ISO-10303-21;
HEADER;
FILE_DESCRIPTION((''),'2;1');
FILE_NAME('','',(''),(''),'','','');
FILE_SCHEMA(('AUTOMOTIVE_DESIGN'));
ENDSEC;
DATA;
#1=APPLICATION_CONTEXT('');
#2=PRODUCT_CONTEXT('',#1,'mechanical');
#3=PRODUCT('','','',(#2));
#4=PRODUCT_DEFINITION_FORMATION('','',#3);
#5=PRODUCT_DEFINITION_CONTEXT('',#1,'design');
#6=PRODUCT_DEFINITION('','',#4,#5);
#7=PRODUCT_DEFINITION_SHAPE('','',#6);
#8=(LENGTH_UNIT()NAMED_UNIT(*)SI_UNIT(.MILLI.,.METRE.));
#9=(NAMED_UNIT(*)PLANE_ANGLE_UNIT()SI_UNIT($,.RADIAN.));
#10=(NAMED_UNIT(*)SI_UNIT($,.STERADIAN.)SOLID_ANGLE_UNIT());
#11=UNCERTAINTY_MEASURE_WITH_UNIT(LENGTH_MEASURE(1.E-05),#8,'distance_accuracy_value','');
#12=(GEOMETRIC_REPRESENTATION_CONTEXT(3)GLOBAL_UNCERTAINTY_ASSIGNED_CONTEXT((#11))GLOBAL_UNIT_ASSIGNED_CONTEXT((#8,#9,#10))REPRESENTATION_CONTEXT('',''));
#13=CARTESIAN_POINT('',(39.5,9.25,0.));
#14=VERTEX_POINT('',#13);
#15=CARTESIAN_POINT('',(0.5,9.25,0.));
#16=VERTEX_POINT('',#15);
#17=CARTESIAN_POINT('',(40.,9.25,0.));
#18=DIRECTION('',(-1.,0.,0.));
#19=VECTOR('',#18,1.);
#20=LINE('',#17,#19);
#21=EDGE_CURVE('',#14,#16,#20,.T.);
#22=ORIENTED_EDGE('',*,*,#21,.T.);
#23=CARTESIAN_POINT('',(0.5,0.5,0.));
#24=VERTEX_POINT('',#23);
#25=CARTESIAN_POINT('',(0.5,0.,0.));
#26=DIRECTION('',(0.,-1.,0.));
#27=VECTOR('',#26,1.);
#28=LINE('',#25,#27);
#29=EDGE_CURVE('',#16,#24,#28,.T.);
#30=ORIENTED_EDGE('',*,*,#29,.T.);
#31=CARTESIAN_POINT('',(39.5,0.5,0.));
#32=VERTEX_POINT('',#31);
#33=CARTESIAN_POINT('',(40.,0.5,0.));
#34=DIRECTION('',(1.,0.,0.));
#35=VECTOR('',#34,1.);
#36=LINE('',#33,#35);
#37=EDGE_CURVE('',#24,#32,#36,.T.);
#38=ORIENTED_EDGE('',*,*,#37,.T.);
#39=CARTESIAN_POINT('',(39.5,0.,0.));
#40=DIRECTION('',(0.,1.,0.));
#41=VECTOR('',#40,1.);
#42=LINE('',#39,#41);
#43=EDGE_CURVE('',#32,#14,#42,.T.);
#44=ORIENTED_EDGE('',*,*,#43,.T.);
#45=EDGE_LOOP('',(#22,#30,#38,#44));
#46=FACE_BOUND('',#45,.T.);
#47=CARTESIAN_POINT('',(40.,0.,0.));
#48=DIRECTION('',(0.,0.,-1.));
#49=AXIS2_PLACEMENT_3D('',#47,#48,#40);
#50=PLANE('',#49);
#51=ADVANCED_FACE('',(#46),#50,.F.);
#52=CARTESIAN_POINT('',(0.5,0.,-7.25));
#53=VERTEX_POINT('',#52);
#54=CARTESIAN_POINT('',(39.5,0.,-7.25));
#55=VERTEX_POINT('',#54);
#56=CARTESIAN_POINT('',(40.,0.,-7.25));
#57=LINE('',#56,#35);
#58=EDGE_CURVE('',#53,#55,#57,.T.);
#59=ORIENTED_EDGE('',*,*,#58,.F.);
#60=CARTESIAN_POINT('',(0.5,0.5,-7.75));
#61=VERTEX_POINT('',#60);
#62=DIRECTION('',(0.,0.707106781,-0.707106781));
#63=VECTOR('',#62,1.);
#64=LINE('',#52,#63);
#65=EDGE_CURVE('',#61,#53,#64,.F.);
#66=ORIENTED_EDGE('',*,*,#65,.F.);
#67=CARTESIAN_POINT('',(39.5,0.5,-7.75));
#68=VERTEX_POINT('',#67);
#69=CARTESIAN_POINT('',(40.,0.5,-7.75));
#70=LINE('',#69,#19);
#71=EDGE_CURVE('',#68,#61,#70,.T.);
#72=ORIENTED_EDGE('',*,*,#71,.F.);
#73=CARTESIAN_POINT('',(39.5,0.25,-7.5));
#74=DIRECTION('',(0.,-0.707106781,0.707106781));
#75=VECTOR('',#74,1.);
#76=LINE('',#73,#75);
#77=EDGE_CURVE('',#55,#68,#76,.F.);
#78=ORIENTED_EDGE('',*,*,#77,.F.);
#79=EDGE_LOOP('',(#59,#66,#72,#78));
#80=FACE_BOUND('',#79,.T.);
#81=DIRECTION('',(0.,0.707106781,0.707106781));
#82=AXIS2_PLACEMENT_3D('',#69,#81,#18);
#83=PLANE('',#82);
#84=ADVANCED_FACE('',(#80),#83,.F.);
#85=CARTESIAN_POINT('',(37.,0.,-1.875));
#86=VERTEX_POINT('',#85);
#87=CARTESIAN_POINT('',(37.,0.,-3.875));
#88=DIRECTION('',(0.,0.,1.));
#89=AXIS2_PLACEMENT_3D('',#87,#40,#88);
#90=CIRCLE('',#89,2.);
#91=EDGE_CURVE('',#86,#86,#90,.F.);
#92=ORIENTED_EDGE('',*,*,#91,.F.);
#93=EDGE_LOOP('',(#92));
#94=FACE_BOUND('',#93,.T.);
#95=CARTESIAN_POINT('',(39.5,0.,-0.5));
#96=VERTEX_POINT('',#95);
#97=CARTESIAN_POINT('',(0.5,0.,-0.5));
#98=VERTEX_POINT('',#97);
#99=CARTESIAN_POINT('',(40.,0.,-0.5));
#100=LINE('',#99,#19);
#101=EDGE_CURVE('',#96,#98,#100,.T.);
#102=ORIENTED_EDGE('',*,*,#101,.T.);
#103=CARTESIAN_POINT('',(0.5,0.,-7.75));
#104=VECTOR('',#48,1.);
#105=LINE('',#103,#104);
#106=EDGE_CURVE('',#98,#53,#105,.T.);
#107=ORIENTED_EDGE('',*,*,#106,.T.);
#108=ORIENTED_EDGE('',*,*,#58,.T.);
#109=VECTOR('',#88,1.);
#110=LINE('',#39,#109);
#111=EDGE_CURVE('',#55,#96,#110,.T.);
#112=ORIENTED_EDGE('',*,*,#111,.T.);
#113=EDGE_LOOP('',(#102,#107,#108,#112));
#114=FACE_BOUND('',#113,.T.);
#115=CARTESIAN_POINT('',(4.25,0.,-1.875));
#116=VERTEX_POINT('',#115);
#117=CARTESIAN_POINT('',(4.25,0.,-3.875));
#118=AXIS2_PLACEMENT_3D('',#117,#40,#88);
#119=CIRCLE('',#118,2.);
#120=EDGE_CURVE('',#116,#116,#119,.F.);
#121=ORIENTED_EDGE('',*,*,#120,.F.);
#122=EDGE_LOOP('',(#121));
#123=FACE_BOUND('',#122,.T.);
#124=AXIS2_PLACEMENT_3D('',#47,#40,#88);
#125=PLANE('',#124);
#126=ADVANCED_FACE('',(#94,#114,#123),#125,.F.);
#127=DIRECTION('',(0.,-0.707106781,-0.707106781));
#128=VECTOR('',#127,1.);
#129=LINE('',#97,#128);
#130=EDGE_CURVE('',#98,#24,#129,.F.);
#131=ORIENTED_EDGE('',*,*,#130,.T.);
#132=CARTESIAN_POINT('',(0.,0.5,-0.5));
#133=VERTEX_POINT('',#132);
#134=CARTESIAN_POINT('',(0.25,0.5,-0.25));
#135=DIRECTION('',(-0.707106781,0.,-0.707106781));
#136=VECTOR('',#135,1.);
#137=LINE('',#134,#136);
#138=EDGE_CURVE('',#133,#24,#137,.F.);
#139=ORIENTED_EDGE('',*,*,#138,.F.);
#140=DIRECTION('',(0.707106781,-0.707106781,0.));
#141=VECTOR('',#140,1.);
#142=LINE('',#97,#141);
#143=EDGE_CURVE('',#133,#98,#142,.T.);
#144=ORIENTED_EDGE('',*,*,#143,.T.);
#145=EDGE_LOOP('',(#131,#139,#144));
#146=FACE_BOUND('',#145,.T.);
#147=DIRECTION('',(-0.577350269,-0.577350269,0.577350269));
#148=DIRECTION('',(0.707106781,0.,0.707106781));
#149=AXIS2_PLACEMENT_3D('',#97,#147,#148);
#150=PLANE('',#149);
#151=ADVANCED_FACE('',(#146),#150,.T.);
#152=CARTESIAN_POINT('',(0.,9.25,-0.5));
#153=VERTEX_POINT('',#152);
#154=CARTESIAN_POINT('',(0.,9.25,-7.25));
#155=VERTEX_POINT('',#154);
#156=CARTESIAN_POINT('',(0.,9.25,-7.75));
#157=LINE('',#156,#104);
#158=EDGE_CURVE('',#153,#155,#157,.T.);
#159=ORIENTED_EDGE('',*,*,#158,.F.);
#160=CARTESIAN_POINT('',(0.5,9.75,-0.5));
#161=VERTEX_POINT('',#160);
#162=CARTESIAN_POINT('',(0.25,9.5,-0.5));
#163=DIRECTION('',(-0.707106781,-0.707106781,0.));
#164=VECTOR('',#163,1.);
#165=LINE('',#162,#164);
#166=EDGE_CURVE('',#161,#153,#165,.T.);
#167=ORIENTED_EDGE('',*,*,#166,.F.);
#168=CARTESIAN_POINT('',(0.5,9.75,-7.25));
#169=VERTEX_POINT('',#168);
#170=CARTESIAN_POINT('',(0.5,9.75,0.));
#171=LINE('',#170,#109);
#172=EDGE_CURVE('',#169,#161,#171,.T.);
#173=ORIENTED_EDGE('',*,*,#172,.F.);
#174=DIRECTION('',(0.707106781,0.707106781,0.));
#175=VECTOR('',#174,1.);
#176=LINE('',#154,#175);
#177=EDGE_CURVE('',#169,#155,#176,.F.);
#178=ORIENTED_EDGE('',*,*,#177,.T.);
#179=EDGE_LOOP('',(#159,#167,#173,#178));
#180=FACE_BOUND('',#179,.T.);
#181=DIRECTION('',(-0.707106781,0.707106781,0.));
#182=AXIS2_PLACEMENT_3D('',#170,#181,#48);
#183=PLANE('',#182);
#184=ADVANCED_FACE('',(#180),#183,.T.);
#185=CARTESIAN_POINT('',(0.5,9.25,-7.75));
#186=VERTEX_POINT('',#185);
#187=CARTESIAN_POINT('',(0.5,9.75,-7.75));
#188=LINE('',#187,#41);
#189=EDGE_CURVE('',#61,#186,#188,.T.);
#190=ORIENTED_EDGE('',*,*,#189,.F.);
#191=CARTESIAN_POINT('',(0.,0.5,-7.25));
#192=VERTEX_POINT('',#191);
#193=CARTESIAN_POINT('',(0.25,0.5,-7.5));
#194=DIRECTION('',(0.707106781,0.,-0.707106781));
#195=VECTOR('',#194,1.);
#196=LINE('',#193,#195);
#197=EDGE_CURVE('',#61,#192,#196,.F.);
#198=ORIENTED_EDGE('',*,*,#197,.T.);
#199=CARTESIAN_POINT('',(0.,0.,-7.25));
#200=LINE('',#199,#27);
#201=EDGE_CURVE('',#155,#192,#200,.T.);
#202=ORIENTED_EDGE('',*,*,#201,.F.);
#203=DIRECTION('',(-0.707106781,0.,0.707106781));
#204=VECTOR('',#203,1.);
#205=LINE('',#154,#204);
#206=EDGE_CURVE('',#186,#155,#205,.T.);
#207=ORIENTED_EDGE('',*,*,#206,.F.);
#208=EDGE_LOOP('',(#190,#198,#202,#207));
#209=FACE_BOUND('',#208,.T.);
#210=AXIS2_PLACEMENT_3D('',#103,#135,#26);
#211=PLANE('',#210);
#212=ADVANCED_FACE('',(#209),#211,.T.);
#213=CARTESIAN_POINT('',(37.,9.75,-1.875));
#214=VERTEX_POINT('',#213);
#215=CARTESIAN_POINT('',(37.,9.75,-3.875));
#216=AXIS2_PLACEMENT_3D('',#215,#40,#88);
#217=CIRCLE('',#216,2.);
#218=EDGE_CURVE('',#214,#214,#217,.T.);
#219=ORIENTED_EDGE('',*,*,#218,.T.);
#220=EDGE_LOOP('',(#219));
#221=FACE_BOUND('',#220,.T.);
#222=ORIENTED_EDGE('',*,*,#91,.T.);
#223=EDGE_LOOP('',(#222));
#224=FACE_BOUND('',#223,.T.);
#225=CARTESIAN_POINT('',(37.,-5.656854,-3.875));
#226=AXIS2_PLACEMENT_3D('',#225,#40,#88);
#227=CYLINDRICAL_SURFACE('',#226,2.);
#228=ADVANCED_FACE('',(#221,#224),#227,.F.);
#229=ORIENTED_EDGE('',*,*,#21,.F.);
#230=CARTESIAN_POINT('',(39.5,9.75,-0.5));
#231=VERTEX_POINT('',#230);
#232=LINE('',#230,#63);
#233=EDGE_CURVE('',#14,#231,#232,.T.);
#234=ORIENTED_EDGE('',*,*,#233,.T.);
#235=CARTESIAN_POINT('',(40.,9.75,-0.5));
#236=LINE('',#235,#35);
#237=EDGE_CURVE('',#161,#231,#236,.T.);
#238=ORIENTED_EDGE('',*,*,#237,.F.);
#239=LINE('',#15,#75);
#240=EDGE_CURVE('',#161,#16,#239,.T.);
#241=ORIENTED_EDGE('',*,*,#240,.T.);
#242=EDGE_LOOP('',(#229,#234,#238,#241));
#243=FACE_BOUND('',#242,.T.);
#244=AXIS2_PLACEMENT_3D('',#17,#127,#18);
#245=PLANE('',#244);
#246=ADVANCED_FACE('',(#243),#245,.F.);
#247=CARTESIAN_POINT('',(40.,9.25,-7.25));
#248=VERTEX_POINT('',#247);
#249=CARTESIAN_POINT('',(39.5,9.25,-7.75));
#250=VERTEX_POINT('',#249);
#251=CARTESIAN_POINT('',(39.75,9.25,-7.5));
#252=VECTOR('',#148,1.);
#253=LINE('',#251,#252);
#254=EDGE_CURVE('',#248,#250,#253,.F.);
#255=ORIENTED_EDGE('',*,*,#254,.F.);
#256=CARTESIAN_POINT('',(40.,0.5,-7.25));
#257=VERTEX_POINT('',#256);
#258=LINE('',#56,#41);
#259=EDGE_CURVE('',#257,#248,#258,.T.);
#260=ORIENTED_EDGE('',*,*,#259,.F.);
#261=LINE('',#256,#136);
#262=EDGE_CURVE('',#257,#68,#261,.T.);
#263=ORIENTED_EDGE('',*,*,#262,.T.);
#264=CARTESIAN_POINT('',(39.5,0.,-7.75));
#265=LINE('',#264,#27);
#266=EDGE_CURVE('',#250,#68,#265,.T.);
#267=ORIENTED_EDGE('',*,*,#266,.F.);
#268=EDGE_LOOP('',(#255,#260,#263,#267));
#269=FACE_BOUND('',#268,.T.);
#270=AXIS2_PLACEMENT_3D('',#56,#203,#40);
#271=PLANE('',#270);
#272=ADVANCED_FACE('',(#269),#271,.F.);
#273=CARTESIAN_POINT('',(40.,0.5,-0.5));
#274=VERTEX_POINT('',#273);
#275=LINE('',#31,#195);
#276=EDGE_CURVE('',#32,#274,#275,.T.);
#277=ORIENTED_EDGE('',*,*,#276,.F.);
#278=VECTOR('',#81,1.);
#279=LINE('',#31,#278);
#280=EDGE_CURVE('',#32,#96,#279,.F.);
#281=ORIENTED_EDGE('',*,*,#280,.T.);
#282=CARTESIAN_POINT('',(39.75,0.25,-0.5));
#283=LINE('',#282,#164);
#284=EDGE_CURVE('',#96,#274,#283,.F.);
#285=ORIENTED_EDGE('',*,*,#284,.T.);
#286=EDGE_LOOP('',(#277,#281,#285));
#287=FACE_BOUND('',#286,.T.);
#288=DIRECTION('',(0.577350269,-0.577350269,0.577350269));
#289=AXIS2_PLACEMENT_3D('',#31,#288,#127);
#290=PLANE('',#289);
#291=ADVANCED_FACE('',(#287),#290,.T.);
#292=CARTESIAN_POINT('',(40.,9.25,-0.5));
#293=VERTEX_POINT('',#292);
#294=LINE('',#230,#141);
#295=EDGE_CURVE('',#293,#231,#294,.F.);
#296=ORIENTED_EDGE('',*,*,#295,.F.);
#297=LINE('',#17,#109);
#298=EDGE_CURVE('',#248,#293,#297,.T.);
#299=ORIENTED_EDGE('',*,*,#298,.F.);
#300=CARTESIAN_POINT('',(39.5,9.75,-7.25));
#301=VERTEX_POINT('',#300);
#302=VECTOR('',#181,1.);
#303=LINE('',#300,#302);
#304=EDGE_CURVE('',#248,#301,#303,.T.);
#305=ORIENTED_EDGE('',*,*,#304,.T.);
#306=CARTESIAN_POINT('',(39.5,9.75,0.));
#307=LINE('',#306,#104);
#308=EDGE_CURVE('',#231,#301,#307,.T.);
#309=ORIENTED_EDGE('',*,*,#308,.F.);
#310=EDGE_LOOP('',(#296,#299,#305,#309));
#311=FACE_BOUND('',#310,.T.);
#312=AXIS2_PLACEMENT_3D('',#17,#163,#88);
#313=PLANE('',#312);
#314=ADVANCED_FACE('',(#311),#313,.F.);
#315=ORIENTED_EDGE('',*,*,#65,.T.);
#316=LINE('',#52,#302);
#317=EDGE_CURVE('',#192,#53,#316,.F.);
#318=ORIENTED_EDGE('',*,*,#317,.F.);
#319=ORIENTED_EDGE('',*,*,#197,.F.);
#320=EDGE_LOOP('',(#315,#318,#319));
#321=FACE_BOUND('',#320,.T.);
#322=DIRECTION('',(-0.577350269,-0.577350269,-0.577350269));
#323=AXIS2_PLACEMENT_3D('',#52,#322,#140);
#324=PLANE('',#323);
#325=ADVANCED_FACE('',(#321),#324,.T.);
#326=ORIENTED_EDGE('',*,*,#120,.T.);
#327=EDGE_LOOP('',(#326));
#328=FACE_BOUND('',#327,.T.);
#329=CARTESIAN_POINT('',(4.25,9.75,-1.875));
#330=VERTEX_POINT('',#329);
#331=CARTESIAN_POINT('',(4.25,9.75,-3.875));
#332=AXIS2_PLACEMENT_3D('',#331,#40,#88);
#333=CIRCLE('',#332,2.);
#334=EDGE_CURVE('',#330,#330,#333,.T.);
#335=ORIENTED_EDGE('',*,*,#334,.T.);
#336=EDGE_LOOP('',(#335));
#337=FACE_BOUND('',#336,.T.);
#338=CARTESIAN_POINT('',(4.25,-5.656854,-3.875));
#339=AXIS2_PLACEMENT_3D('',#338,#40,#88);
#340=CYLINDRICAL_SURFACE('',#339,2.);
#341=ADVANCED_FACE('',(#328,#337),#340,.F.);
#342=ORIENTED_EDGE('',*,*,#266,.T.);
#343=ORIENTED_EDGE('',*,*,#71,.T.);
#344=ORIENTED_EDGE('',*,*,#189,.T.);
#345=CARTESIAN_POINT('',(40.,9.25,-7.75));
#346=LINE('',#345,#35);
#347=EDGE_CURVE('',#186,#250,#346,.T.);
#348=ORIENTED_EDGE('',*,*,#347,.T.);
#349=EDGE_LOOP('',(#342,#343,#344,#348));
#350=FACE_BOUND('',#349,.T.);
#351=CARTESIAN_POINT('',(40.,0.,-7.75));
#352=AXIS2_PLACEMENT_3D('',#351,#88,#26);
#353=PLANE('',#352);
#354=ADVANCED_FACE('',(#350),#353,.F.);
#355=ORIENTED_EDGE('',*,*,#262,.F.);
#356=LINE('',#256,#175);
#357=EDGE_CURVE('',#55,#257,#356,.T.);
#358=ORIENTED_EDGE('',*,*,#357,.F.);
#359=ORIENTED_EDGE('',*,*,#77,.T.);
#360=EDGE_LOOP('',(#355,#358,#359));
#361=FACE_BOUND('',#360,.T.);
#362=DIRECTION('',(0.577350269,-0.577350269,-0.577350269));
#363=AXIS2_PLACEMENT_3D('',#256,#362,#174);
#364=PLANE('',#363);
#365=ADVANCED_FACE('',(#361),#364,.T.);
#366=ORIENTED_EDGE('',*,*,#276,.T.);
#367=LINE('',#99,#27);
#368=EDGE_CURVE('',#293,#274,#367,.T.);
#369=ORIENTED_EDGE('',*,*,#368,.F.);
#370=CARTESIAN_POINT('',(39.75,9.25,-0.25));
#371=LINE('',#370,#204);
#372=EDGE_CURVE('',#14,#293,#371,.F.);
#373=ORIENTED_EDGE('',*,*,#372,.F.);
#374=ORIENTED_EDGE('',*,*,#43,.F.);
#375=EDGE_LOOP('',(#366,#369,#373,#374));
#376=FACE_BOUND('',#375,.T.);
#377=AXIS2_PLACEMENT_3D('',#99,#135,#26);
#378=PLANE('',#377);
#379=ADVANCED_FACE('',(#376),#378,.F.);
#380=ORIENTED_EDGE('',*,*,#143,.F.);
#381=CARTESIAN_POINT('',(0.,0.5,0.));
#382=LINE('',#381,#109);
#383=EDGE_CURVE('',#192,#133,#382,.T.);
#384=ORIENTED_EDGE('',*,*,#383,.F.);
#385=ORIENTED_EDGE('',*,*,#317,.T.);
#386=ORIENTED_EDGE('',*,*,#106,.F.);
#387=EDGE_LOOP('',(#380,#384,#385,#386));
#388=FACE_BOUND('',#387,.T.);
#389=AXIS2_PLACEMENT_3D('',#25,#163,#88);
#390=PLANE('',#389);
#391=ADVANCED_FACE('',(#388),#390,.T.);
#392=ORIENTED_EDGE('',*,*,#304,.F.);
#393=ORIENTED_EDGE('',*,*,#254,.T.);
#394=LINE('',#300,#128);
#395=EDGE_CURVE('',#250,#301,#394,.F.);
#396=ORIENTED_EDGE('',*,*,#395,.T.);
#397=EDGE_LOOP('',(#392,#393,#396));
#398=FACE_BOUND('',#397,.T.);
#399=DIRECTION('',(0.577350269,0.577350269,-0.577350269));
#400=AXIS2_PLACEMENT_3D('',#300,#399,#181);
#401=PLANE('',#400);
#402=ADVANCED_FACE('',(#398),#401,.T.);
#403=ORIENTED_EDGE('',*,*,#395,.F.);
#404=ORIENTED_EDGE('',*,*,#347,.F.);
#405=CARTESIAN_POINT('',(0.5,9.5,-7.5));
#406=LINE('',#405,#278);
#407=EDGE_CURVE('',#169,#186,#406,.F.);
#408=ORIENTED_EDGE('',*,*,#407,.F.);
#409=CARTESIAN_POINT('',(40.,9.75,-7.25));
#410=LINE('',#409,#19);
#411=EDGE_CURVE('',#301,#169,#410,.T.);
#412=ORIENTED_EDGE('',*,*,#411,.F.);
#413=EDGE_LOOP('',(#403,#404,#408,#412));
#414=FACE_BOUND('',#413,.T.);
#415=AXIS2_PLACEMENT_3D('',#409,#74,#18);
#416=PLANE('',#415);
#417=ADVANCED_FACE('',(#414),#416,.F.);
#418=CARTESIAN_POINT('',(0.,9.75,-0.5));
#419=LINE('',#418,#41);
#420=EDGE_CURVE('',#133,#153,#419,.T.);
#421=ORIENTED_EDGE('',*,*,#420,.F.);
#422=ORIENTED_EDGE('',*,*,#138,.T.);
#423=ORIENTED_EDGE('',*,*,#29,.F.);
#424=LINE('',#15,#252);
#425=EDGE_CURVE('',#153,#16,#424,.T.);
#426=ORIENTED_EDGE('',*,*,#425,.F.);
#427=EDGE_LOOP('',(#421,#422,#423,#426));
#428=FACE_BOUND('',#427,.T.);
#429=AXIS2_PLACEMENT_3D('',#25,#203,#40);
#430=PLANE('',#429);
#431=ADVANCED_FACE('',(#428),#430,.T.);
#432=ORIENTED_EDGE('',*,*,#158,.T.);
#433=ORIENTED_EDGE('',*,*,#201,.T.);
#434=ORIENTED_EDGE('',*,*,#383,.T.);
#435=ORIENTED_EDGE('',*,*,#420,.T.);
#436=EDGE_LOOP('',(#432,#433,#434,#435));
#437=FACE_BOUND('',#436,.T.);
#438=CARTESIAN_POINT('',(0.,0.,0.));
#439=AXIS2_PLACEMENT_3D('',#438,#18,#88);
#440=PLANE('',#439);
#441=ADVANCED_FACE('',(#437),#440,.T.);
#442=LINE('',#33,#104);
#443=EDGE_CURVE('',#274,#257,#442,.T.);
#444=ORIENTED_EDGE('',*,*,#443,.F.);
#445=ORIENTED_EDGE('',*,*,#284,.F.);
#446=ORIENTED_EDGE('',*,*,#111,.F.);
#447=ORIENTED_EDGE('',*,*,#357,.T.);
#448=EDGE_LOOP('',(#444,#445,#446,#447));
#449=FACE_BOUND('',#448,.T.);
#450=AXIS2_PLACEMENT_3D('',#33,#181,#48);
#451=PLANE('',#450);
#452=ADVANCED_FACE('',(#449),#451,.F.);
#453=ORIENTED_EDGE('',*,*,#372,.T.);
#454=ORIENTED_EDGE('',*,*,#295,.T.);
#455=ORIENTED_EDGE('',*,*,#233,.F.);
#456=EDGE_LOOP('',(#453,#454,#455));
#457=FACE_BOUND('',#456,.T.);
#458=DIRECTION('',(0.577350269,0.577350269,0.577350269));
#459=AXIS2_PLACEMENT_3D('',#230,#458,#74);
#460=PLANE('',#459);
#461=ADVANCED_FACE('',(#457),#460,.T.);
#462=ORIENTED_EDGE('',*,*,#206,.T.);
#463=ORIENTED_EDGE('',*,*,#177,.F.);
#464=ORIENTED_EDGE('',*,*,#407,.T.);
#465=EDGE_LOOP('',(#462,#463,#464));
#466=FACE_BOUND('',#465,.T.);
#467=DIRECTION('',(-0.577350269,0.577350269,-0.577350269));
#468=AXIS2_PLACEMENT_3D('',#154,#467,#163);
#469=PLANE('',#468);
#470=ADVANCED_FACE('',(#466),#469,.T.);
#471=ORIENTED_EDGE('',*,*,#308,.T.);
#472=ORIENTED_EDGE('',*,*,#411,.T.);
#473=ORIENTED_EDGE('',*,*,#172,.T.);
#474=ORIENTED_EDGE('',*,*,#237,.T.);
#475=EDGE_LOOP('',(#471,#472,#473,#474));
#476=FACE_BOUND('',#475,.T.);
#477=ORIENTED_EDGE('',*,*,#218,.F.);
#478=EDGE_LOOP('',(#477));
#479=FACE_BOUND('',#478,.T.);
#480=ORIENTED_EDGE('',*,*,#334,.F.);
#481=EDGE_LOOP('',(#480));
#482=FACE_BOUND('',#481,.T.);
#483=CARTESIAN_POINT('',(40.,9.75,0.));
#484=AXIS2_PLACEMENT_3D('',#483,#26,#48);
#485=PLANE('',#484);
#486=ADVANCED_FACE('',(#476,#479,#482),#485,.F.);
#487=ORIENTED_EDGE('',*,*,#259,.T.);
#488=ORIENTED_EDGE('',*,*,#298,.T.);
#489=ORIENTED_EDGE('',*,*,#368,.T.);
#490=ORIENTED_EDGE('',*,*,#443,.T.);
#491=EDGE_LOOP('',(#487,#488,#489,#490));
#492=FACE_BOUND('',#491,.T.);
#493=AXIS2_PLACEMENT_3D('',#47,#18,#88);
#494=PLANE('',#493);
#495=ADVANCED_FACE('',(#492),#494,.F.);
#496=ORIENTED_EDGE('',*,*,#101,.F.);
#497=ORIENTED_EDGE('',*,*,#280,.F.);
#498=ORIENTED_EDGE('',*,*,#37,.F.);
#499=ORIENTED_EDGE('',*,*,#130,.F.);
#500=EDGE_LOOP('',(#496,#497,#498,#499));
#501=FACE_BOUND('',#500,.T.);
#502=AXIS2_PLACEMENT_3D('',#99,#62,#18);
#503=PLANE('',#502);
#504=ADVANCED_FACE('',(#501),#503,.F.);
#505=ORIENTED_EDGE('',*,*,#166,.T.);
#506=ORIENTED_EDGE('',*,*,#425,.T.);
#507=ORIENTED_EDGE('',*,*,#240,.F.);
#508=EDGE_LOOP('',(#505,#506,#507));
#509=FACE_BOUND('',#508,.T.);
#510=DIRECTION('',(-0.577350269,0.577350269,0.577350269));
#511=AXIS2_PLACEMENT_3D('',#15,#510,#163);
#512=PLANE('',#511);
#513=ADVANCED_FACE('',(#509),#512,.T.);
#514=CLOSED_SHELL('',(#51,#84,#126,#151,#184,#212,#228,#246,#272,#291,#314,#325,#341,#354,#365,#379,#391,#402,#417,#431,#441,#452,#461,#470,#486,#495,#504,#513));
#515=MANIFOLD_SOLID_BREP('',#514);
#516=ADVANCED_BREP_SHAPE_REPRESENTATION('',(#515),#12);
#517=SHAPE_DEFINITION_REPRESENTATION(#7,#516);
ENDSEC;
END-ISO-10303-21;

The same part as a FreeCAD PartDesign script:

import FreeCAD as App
import Part
import Sketcher

V = App.Vector


def edges_at(feature, points):
    """Names of the edges that pass closest to the given points."""
    edges = feature.Shape.Edges
    near = lambda p: min(range(len(edges)), key=lambda i: edges[i].distToShape(Part.Vertex(*p))[0])
    return sorted({f"Edge{near(p) + 1}" for p in points})

doc = App.newDocument("Part")
params = doc.addObject("Spreadsheet::Sheet", "Params")
for row, (alias, value) in enumerate([
    ("sketch1_width", "9.75 mm"),
    ("sketch1_height", "7.75 mm"),
    ("pad1_length", "40 mm"),
    ("sketch2_diameter", "4 mm"),
    ("pocket1_length", "9.75 mm"),
    ("chamfer_size", "0.5 mm"),
], start=1):
    params.set(f"A{row}", alias)
    params.set(f"B{row}", "=" + value)
    params.setAlias(f"B{row}", alias)

body = doc.addObject("PartDesign::Body", "Body")

sketch1 = body.newObject("Sketcher::SketchObject", "Sketch")
sketch1.AttachmentSupport = (doc.getObject("YZ_Plane"), [""])
sketch1.MapMode = "FlatFace"
sketch1.addGeometry([
    Part.LineSegment(V(9.75, 0, 0), V(0, 0, 0)),
    Part.LineSegment(V(0, 0, 0), V(0, -7.75, 0)),
    Part.LineSegment(V(0, -7.75, 0), V(9.75, -7.75, 0)),
    Part.LineSegment(V(9.75, -7.75, 0), V(9.75, 0, 0)),
], False)
sketch1.addConstraint([
    Sketcher.Constraint("Coincident", 0, 2, 1, 1),
    Sketcher.Constraint("Coincident", 1, 2, 2, 1),
    Sketcher.Constraint("Coincident", 2, 2, 3, 1),
    Sketcher.Constraint("Coincident", 3, 2, 0, 1),
    Sketcher.Constraint("Horizontal", 0),
    Sketcher.Constraint("Vertical", 1),
    Sketcher.Constraint("Horizontal", 2),
    Sketcher.Constraint("Vertical", 3),
    Sketcher.Constraint("Coincident", 0, 2, -1, 1),
    Sketcher.Constraint("DistanceX", 0, 2, 0, 1, 9.75),
    Sketcher.Constraint("DistanceY", 1, 2, 1, 1, 7.75),
])
sketch1.setExpression("Constraints[9]", "Params.sketch1_width")
sketch1.setExpression("Constraints[10]", "Params.sketch1_height")
pad1 = body.newObject("PartDesign::Pad", "Pad")
pad1.Profile = sketch1
pad1.setExpression("Length", "Params.pad1_length")

sketch2 = body.newObject("Sketcher::SketchObject", "Sketch001")
sketch2.AttachmentSupport = (doc.getObject("XZ_Plane"), [""])
sketch2.MapMode = "FlatFace"
sketch2.AttachmentOffset = App.Placement(V(0, 0, -9.75), App.Rotation())
sketch2.addGeometry([
    Part.Circle(V(4.25, -3.875, 0), V(0, 0, 1), 2),
    Part.Circle(V(37, -3.875, 0), V(0, 0, 1), 2),
], False)
sketch2.addConstraint([
    Sketcher.Constraint("Equal", 0, 1),
    Sketcher.Constraint("Horizontal", 0, 3, 1, 3),
    Sketcher.Constraint("Diameter", 0, 4.0),
    Sketcher.Constraint("DistanceX", -1, 1, 1, 3, 37.0),
    Sketcher.Constraint("DistanceX", -1, 1, 0, 3, 4.25),
    Sketcher.Constraint("DistanceY", 0, 3, -1, 1, 3.875),
])
sketch2.setExpression("Constraints[2]", "Params.sketch2_diameter")
pocket1 = body.newObject("PartDesign::Pocket", "Pocket")
pocket1.Profile = sketch2
pocket1.setExpression("Length", "Params.pocket1_length")
pocket1.Reversed = True
doc.recompute()

chamfer = body.newObject("PartDesign::Chamfer", "Chamfer")
chamfer.Base = (pocket1, edges_at(pocket1, [
    (40, 4.875, -7.75),
    (40, 9.75, -3.875),
    (40, 4.875, 0),
    (0, 9.75, -3.875),
    (0, 4.875, -7.75),
    (0, 0, -3.875),
    (0, 4.875, 0),
    (20, 9.75, 0),
    (20, 9.75, -7.75),
    (20, 0, -7.75),
    (20, 0, 0),
    (40, 0, -3.875),
]))
chamfer.setExpression("Size", "Params.chamfer_size")

doc.recompute()
